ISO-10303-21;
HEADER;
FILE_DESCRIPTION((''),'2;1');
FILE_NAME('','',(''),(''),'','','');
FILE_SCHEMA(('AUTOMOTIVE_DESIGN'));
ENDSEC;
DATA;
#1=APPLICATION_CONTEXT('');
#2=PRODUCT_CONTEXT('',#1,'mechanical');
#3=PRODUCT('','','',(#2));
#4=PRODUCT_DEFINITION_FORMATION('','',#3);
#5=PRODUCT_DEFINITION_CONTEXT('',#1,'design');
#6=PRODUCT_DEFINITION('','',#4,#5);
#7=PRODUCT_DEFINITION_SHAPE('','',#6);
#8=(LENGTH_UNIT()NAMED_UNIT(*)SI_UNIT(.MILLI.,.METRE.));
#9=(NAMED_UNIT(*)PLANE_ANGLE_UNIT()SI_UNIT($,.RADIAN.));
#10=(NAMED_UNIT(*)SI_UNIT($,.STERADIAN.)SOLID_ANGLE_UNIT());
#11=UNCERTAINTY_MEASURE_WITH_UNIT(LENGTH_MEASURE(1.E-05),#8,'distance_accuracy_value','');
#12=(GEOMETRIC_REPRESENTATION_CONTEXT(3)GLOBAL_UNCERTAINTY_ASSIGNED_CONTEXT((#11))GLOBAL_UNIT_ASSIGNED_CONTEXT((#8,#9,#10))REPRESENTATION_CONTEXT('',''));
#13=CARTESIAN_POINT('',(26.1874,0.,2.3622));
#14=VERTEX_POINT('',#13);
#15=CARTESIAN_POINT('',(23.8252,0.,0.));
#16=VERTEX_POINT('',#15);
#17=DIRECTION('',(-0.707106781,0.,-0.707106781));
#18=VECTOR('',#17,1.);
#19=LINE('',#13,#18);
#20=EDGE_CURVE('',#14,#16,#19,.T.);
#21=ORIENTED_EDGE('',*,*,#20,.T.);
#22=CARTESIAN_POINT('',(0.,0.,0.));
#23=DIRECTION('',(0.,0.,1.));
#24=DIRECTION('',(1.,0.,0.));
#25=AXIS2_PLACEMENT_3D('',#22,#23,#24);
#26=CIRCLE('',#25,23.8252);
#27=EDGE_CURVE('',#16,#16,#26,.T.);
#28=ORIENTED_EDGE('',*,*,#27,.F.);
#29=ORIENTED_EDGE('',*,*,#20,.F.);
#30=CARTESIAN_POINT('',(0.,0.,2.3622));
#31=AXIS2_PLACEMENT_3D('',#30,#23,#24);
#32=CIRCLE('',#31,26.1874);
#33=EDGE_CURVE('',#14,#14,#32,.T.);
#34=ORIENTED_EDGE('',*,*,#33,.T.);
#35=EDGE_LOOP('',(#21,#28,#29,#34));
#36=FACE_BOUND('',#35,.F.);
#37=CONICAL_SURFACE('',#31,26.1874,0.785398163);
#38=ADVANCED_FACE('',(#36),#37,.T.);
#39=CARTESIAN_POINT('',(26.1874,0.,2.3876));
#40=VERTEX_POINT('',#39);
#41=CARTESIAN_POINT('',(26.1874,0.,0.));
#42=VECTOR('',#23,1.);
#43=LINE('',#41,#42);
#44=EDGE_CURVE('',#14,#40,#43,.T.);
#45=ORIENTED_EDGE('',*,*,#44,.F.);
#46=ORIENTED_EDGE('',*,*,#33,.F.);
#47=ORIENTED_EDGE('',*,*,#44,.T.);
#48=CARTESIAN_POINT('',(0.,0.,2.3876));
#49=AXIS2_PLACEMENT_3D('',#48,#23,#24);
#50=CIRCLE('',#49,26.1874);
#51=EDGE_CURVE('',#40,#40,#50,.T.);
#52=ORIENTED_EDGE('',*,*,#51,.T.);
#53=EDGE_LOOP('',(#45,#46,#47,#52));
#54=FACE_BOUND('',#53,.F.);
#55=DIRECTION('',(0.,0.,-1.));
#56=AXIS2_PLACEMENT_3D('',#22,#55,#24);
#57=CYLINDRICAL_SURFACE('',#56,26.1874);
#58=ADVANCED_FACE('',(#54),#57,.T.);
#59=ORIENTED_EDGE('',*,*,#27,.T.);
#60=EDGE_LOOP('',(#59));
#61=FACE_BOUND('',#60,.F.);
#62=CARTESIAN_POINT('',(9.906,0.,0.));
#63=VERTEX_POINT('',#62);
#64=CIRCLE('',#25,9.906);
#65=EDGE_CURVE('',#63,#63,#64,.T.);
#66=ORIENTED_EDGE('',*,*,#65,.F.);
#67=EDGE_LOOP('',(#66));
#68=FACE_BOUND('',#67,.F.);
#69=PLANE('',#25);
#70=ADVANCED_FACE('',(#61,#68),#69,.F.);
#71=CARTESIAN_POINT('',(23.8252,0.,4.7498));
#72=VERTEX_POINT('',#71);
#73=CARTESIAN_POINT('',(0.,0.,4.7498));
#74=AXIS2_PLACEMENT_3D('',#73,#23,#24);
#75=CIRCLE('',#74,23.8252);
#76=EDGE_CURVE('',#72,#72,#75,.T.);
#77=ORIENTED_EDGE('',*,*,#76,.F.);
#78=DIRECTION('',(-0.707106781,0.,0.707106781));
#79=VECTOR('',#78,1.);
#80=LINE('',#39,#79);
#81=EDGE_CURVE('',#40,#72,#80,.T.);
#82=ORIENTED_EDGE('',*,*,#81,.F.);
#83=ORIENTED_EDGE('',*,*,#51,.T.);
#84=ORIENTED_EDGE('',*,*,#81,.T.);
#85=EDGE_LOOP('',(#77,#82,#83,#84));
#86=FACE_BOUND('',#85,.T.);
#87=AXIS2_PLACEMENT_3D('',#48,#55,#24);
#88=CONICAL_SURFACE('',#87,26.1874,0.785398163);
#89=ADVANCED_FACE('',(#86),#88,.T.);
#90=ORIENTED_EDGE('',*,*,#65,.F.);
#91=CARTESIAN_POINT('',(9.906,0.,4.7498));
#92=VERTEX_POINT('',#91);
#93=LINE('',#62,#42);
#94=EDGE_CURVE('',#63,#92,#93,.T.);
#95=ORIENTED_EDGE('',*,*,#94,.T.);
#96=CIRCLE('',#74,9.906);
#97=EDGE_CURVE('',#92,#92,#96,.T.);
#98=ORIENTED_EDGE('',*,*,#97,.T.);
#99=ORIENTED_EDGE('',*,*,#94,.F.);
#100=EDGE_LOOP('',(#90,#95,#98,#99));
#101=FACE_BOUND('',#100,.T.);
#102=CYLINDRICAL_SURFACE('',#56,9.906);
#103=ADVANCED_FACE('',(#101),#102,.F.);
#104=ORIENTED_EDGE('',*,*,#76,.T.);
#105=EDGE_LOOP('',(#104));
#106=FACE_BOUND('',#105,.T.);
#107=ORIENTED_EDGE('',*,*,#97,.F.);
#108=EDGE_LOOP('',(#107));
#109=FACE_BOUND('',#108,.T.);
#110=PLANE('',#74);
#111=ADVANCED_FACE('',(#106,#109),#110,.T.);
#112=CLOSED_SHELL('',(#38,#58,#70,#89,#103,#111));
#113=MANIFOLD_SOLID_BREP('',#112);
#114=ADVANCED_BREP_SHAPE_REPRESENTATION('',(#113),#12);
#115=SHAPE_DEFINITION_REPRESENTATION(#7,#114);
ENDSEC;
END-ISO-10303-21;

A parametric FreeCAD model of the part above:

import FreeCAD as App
import Part
import Sketcher
Q = App.Units.Quantity


def edges_at(feature, points):
    """Names of the edges that pass closest to the given points."""
    edges = feature.Shape.Edges
    near = lambda p: min(range(len(edges)), key=lambda i: edges[i].distToShape(Part.Vertex(*p))[0])
    return sorted({f"Edge{near(p) + 1}" for p in points})

doc = App.newDocument("Part")
body = doc.addObject("PartDesign::Body", "Body")

# Sketch on XY plane
sketch1 = doc.addObject("Sketcher::SketchObject", "Sketch")
body.addObject(sketch1)
sketch1.AttachmentSupport = (doc.XY_Plane, [""])
sketch1.MapMode = "FlatFace"
sketch1.addGeometry([
    Part.Circle(App.Vector(0, 0, 0), App.Vector(0, 0, 1), 26),
    Part.Circle(App.Vector(0, 0, 0), App.Vector(0, 0, 1), 10),
], False)
sketch1.addConstraint([
    Sketcher.Constraint("Coincident", 0, 3, -1, 1),
    Sketcher.Constraint("Coincident", 1, 3, -1, 1),
    Sketcher.Constraint("Diameter", 1, Q("0.78 in")),
    Sketcher.Constraint("Diameter", 0, Q("2.062 in")),
])
pad1 = doc.addObject("PartDesign::Pad", "Pad")
body.addObject(pad1)
pad1.Profile = sketch1
pad1.Length = Q("0.187 in")
doc.recompute()

chamfer = doc.addObject("PartDesign::Chamfer", "Chamfer")
body.addObject(chamfer)
chamfer.Base = (pad1, edges_at(pad1, [(-24.415, -9.47, 4.75), (-24.415, -9.47, 0)]))
chamfer.Size = Q("0.093 in")

doc.recompute()
